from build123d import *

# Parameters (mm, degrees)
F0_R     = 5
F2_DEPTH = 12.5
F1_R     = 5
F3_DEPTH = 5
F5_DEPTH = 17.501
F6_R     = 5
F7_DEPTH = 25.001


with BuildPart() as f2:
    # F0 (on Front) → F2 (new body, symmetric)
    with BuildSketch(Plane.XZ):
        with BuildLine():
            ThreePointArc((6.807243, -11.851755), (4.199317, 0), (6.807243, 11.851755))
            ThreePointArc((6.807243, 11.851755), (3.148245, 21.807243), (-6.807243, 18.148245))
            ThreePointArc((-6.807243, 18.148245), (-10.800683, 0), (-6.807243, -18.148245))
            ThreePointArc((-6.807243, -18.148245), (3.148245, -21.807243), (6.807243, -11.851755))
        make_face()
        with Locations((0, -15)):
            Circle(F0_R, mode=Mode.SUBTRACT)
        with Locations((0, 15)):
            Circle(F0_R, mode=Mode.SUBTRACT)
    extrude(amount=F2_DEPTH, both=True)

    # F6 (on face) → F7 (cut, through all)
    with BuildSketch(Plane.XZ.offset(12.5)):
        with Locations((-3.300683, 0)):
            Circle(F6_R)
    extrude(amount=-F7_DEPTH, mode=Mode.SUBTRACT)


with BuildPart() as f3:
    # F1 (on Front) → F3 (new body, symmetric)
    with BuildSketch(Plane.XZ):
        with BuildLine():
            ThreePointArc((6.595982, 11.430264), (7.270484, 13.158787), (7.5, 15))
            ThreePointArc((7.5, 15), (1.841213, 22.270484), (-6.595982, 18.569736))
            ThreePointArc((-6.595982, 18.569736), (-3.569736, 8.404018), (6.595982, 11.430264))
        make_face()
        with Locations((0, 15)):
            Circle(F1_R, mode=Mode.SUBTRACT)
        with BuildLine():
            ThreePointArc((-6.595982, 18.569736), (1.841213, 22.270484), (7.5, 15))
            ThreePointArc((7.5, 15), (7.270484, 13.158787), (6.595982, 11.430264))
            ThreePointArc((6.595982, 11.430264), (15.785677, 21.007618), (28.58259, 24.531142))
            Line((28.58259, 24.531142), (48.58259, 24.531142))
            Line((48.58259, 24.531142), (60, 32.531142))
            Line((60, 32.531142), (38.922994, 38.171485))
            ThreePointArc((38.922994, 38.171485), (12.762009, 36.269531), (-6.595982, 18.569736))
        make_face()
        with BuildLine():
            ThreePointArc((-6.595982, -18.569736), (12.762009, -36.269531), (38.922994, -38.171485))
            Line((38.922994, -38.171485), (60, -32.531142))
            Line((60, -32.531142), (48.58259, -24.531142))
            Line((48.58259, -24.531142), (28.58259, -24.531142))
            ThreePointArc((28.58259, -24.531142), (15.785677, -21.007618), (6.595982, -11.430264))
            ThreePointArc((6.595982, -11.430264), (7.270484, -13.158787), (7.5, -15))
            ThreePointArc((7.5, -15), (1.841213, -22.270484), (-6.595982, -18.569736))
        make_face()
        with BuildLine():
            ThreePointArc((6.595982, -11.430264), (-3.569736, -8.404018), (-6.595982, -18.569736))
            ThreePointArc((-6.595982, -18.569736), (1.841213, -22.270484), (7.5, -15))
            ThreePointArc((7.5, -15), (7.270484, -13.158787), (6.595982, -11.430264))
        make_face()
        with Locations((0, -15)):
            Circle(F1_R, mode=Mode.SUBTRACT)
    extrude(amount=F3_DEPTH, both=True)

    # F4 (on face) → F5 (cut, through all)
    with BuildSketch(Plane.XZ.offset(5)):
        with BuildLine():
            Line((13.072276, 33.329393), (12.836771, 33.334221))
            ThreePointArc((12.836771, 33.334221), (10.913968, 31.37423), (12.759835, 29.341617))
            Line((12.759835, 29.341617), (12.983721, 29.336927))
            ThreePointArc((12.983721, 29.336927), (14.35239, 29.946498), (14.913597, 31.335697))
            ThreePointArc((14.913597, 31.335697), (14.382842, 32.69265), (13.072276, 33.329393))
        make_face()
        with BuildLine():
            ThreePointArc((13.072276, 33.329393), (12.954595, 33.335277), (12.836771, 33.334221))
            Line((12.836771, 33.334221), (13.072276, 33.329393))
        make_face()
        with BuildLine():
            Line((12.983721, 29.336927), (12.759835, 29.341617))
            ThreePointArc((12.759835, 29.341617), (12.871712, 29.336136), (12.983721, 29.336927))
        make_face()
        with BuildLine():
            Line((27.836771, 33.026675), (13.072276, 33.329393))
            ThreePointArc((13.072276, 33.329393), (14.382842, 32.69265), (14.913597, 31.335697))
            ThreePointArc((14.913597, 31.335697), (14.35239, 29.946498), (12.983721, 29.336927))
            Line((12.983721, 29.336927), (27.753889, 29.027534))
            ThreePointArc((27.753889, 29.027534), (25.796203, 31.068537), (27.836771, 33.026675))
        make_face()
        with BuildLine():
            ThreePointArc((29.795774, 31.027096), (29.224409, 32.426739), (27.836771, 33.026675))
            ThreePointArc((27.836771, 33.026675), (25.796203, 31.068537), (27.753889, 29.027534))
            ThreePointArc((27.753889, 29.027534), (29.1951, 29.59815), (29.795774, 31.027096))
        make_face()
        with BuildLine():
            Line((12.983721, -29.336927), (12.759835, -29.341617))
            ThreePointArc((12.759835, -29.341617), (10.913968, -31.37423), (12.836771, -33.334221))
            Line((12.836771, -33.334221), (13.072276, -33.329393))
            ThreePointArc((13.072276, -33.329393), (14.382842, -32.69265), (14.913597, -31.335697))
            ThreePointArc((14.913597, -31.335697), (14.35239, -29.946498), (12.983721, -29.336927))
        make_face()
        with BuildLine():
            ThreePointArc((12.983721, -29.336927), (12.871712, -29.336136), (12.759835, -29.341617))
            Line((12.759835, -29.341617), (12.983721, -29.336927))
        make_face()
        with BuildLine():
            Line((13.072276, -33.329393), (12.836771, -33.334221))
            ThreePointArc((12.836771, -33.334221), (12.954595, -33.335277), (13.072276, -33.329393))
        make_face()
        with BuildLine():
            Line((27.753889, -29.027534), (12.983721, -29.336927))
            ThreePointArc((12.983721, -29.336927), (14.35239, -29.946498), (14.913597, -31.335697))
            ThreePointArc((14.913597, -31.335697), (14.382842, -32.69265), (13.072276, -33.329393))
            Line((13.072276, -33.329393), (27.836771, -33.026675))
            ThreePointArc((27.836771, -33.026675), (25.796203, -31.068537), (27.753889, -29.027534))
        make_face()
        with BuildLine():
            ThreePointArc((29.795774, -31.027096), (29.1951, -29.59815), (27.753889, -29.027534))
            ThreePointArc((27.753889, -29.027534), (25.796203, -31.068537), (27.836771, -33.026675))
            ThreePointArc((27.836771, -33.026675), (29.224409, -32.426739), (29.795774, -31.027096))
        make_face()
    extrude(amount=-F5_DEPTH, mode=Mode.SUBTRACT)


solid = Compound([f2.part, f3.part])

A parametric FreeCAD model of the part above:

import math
import FreeCAD as App
import Part
import Sketcher
from FreeCAD import Vector

doc = App.newDocument("Part")
body = doc.addObject("PartDesign::Body", "Body")

# Sketch on XZ plane
sketch1 = body.newObject("Sketcher::SketchObject", "Sketch")
sketch1.AttachmentSupport = (doc.getObject("XZ_Plane"), [""])
sketch1.MapMode = "FlatFace"
sketch1.addGeometry(Part.ArcOfCircle(Part.Circle(Vector(32.43351, 0, 0), Vector(0, 0, 1), 28.234193), math.radians(155.180184), math.radians(204.819816)), False)
sketch1.addGeometry(Part.ArcOfCircle(Part.Circle(Vector(0, 15, 0), Vector(0, 0, 1), 7.5), math.radians(-24.819814), math.radians(155.180186)), False)
sketch1.addGeometry(Part.ArcOfCircle(Part.Circle(Vector(32.433516, 0, 0), Vector(0, 0, 1), 43.234199), math.radians(155.180188), math.radians(204.819812)), False)
sketch1.addGeometry(Part.ArcOfCircle(Part.Circle(Vector(0, -15, 0), Vector(0, 0, 1), 7.5), math.radians(-155.180186), math.radians(24.819814)), False)
sketch1.addGeometry(Part.Circle(Vector(0, -15, 0), Vector(0, 0, 1), 5), False)
sketch1.addGeometry(Part.Circle(Vector(0, 15, 0), Vector(0, 0, 1), 5), False)
sketch1.addConstraint(Sketcher.Constraint("Tangent", 0, 1, 1, 1))
sketch1.addConstraint(Sketcher.Constraint("Tangent", 1, 2, 2, 1))
sketch1.addConstraint(Sketcher.Constraint("Tangent", 2, 2, 3, 1))
sketch1.addConstraint(Sketcher.Constraint("Tangent", 3, 2, 0, 2))
sketch1.addConstraint(Sketcher.Constraint("Coincident", 2, 3, 0, 3))
sketch1.addConstraint(Sketcher.Constraint("Coincident", 4, 3, 3, 3))
sketch1.addConstraint(Sketcher.Constraint("Coincident", 5, 3, 1, 3))
sketch1.addConstraint(Sketcher.Constraint("Equal", 4, 5))
sketch1.addConstraint(Sketcher.Constraint("Symmetric", 1, 3, 3, 3, -1, 1))
sketch1.addConstraint(Sketcher.Constraint("PointOnObject", 0, 3, -1))
sketch1.addConstraint(Sketcher.Constraint("Diameter", 4, 10.0))
sketch1.addConstraint(Sketcher.Constraint("Radius", 1, 7.5))
sketch1.addConstraint(Sketcher.Constraint("DistanceY", -1, 1, 1, 3, 15.0))
sketch1.addConstraint(Sketcher.Constraint("Radius", 2, 43.234199))
pad1 = body.newObject("PartDesign::Pad", "Pad")
pad1.Profile = sketch1
pad1.Length = 25
pad1.Midplane = True

# Sketch on XZ plane
sketch2 = body.newObject("Sketcher::SketchObject", "Sketch001")
sketch2.AttachmentSupport = (doc.getObject("XZ_Plane"), [""])
sketch2.MapMode = "FlatFace"
sketch2.AttachmentOffset = App.Placement(Vector(0, 0, 12.5), App.Rotation())
sketch2.addGeometry(Part.Circle(Vector(-3.300683, 0, 0), Vector(0, 0, 1), 5), False)
sketch2.addConstraint(Sketcher.Constraint("PointOnObject", 0, 3, -1))
sketch2.addConstraint(Sketcher.Constraint("Diameter", 0, 10.0))
sketch2.addConstraint(Sketcher.Constraint("DistanceX", 0, 3, -1, 1, 3.300683))
pocket1 = body.newObject("PartDesign::Pocket", "Pocket")
pocket1.Profile = sketch2
pocket1.Type = "ThroughAll"
body2 = doc.addObject("PartDesign::Body", "Body001")
body2.AllowCompound = True

# Sketch on XZ plane
sketch3 = body2.newObject("Sketcher::SketchObject", "Sketch002")
sketch3.AttachmentSupport = (doc.getObject("XZ_Plane001"), [""])
sketch3.MapMode = "FlatFace"
sketch3.addGeometry(Part.ArcOfCircle(Part.Circle(Vector(0, 15, 0), Vector(0, 0, 1), 7.5), math.radians(151.577812), math.radians(331.577812)), False)
sketch3.addGeometry(Part.ArcOfCircle(Part.Circle(Vector(28.58259, -0.46886, 0), Vector(0, 0, 1), 25.000002), math.radians(90.000001), math.radians(151.577805)), False)
sketch3.addGeometry(Part.LineSegment(Vector(28.58259, 24.531142, 0), Vector(48.58259, 24.531142, 0)), False)
sketch3.addGeometry(Part.LineSegment(Vector(48.58259, 24.531142, 0), Vector(60, 32.531142, 0)), False)
sketch3.addGeometry(Part.LineSegment(Vector(60, 32.531142, 0), Vector(38.922994, 38.171485, 0)), False)
sketch3.addGeometry(Part.ArcOfCircle(Part.Circle(Vector(28.582591, -0.468859, 0), Vector(0, 0, 1), 40.000001), math.radians(75.018327), math.radians(151.57781)), False)
sketch3.addGeometry(Part.Circle(Vector(0, 15, 0), Vector(0, 0, 1), 5), False)
sketch3.addGeometry(Part.ArcOfCircle(Part.Circle(Vector(28.582591, 0.468859, 0), Vector(0, 0, 1), 40.000001), math.radians(-151.57781), math.radians(-75.018327)), False)
sketch3.addGeometry(Part.LineSegment(Vector(38.922994, -38.171485, 0), Vector(60, -32.531142, 0)), False)
sketch3.addGeometry(Part.LineSegment(Vector(60, -32.531142, 0), Vector(48.58259, -24.531142, 0)), False)
sketch3.addGeometry(Part.LineSegment(Vector(48.58259, -24.531142, 0), Vector(28.58259, -24.531142, 0)), False)
sketch3.addGeometry(Part.ArcOfCircle(Part.Circle(Vector(28.58259, 0.46886, 0), Vector(0, 0, 1), 25.000002), math.radians(-151.577805), math.radians(-90.000001)), False)
sketch3.addGeometry(Part.ArcOfCircle(Part.Circle(Vector(0, -15, 0), Vector(0, 0, 1), 7.5), math.radians(28.422188), math.radians(208.422188)), False)
sketch3.addGeometry(Part.Circle(Vector(0, -15, 0), Vector(0, 0, 1), 5), False)
sketch3.addConstraint(Sketcher.Constraint("Tangent", 0, 2, 1, 2))
sketch3.addConstraint(Sketcher.Constraint("Tangent", 1, 1, 2, 1))
sketch3.addConstraint(Sketcher.Constraint("Coincident", 2, 2, 3, 1))
sketch3.addConstraint(Sketcher.Constraint("Coincident", 3, 2, 4, 1))
sketch3.addConstraint(Sketcher.Constraint("Tangent", 4, 2, 5, 1))
sketch3.addConstraint(Sketcher.Constraint("Tangent", 5, 2, 0, 1))
sketch3.addConstraint(Sketcher.Constraint("Tangent", 7, 2, 8, 1))
sketch3.addConstraint(Sketcher.Constraint("Coincident", 8, 2, 9, 1))
sketch3.addConstraint(Sketcher.Constraint("Coincident", 9, 2, 10, 1))
sketch3.addConstraint(Sketcher.Constraint("Tangent", 10, 2, 11, 2))
sketch3.addConstraint(Sketcher.Constraint("Tangent", 11, 1, 12, 1))
sketch3.addConstraint(Sketcher.Constraint("Tangent", 12, 2, 7, 1))
sketch3.addConstraint(Sketcher.Constraint("Horizontal", 2))
sketch3.addConstraint(Sketcher.Constraint("Horizontal", 10))
sketch3.addConstraint(Sketcher.Constraint("Coincident", 5, 3, 1, 3))
sketch3.addConstraint(Sketcher.Constraint("Coincident", 6, 3, 0, 3))
sketch3.addConstraint(Sketcher.Constraint("Coincident", 11, 3, 7, 3))
sketch3.addConstraint(Sketcher.Constraint("Coincident", 13, 3, 12, 3))
sketch3.addConstraint(Sketcher.Constraint("Equal", 5, 7))
sketch3.addConstraint(Sketcher.Constraint("Equal", 1, 11))
sketch3.addConstraint(Sketcher.Constraint("Equal", 6, 13))
sketch3.addConstraint(Sketcher.Constraint("Symmetric", 0, 3, 12, 3, -1, 1))
sketch3.addConstraint(Sketcher.Constraint("Symmetric", 1, 3, 7, 3, -1))
sketch3.addConstraint(Sketcher.Constraint("Symmetric", 3, 2, 8, 2, -1))
sketch3.addConstraint(Sketcher.Constraint("Vertical", 2, 2, 9, 2))
sketch3.addConstraint(Sketcher.Constraint("Diameter", 6, 10.0))
sketch3.addConstraint(Sketcher.Constraint("Radius", 5, 40.000001))
sketch3.addConstraint(Sketcher.Constraint("Radius", 0, 7.5))
sketch3.addConstraint(Sketcher.Constraint("DistanceX", 2, 1, 2, 2, 20.0))
sketch3.addConstraint(Sketcher.Constraint("DistanceY", -1, 1, 0, 3, 15.0))
sketch3.addConstraint(Sketcher.Constraint("DistanceX", -1, 1, 3, 2, 60.0))
sketch3.addConstraint(Sketcher.Constraint("DistanceY", 2, 2, 3, 2, 8.0))
sketch3.addConstraint(Sketcher.Constraint("DistanceX", -1, 1, 1, 3, 28.58259))
pad2 = body2.newObject("PartDesign::Pad", "Pad001")
pad2.Profile = sketch3
pad2.Length = 10
pad2.Midplane = True

# Sketch on XZ plane
sketch4 = body2.newObject("Sketcher::SketchObject", "Sketch003")
sketch4.AttachmentSupport = (doc.getObject("XZ_Plane001"), [""])
sketch4.MapMode = "FlatFace"
sketch4.AttachmentOffset = App.Placement(Vector(0, 0, 5), App.Rotation())
sketch4.addGeometry(Part.ArcOfCircle(Part.Circle(Vector(12.913597, 31.335697, 0), Vector(0, 0, 1), 2), math.radians(92.201431), math.radians(265.590705)), False)
sketch4.addGeometry(Part.ArcOfCircle(Part.Circle(Vector(12.913599, 31.335665, 0), Vector(0, 0, 1), 1.999967), math.radians(-94.40943), math.radians(-87.990701)), False)
sketch4.addGeometry(Part.LineSegment(Vector(12.983721, 29.336927, 0), Vector(27.753889, 29.027534, 0)), False)
sketch4.addGeometry(Part.ArcOfCircle(Part.Circle(Vector(27.795773, 31.027096, 0), Vector(0, 0, 1), 2.000001), math.radians(-91.199972), math.radians(-0.000014)), False)
sketch4.addGeometry(Part.ArcOfCircle(Part.Circle(Vector(27.795774, 31.027096, 0), Vector(0, 0, 1), 2), math.radians(0.000011), math.radians(88.825451)), False)
sketch4.addGeometry(Part.LineSegment(Vector(27.836771, 33.026675, 0), Vector(13.072276, 33.329393, 0)), False)
sketch4.addGeometry(Part.ArcOfCircle(Part.Circle(Vector(12.9136, 31.335614, 0), Vector(0, 0, 1), 2.000083), math.radians(85.449683), math.radians(92.201447)), False)
sketch4.addGeometry(Part.ArcOfCircle(Part.Circle(Vector(12.913597, -31.335697, 0), Vector(0, 0, 1), 2), math.radians(94.409295), math.radians(267.798569)), False)
sketch4.addGeometry(Part.ArcOfCircle(Part.Circle(Vector(12.9136, -31.335614, 0), Vector(0, 0, 1), 2.000083), math.radians(-92.201447), math.radians(-85.449683)), False)
sketch4.addGeometry(Part.LineSegment(Vector(13.072276, -33.329393, 0), Vector(27.836771, -33.026675, 0)), False)
sketch4.addGeometry(Part.ArcOfCircle(Part.Circle(Vector(27.795774, -31.027096, 0), Vector(0, 0, 1), 2), math.radians(-88.825451), math.radians(-0.000011)), False)
sketch4.addGeometry(Part.ArcOfCircle(Part.Circle(Vector(27.795773, -31.027096, 0), Vector(0, 0, 1), 2.000001), math.radians(0.000014), math.radians(91.199972)), False)
sketch4.addGeometry(Part.LineSegment(Vector(27.753889, -29.027534, 0), Vector(12.983721, -29.336927, 0)), False)
sketch4.addGeometry(Part.ArcOfCircle(Part.Circle(Vector(12.913599, -31.335665, 0), Vector(0, 0, 1), 1.999967), math.radians(87.990701), math.radians(94.40943)), False)
sketch4.addConstraint(Sketcher.Constraint("Coincident", 0, 2, 1, 1))
sketch4.addConstraint(Sketcher.Constraint("Coincident", 1, 2, 2, 1))
sketch4.addConstraint(Sketcher.Constraint("Coincident", 2, 2, 3, 1))
sketch4.addConstraint(Sketcher.Constraint("Coincident", 3, 2, 4, 1))
sketch4.addConstraint(Sketcher.Constraint("Coincident", 4, 2, 5, 1))
sketch4.addConstraint(Sketcher.Constraint("Coincident", 5, 2, 6, 1))
sketch4.addConstraint(Sketcher.Constraint("Coincident", 6, 2, 0, 1))
sketch4.addConstraint(Sketcher.Constraint("Coincident", 7, 2, 8, 1))
sketch4.addConstraint(Sketcher.Constraint("Coincident", 8, 2, 9, 1))
sketch4.addConstraint(Sketcher.Constraint("Coincident", 9, 2, 10, 1))
sketch4.addConstraint(Sketcher.Constraint("Coincident", 10, 2, 11, 1))
sketch4.addConstraint(Sketcher.Constraint("Coincident", 11, 2, 12, 1))
sketch4.addConstraint(Sketcher.Constraint("Coincident", 12, 2, 13, 1))
sketch4.addConstraint(Sketcher.Constraint("Coincident", 13, 2, 7, 1))
sketch4.addConstraint(Sketcher.Constraint("Coincident", 4, 3, 3, 3))
sketch4.addConstraint(Sketcher.Constraint("Coincident", 11, 3, 10, 3))
sketch4.addConstraint(Sketcher.Constraint("Radius", 0, 2.0))
sketch4.addConstraint(Sketcher.Constraint("Radius", 3, 2.000001))
sketch4.addConstraint(Sketcher.Constraint("Radius", 7, 2.0))
sketch4.addConstraint(Sketcher.Constraint("Radius", 10, 2.0))
sketch4.addConstraint(Sketcher.Constraint("DistanceX", 7, 2, 9, 2, 15.0))
sketch4.addConstraint(Sketcher.Constraint("Radius", 1, 1.999967))
sketch4.addConstraint(Sketcher.Constraint("Radius", 6, 2.000083))
sketch4.addConstraint(Sketcher.Constraint("Radius", 8, 2.000083))
sketch4.addConstraint(Sketcher.Constraint("Radius", 13, 1.999967))
sketch4.addConstraint(Sketcher.Constraint("DistanceX", 3, 3, 4, 2, 0.040998))
sketch4.addConstraint(Sketcher.Constraint("DistanceX", 7, 2, 11, 3, 14.959002))
sketch4.addConstraint(Sketcher.Constraint("Distance", 5, 14.767598))
sketch4.addConstraint(Sketcher.Constraint("Distance", 9, 14.767598))
sketch4.addConstraint(Sketcher.Constraint("DistanceX", -1, 1, 1, 3, 12.913599))
sketch4.addConstraint(Sketcher.Constraint("DistanceX", -1, 1, 6, 3, 12.9136))
sketch4.addConstraint(Sketcher.Constraint("DistanceX", -1, 1, 8, 3, 12.9136))
sketch4.addConstraint(Sketcher.Constraint("DistanceX", -1, 1, 13, 3, 12.913599))
sketch4.addConstraint(Sketcher.Constraint("DistanceY", 3, 3, 0, 3, 0.308601))
sketch4.addConstraint(Sketcher.Constraint("DistanceY", 7, 3, 10, 3, 0.308602))
sketch4.addConstraint(Sketcher.Constraint("Distance", 2, 14.773408))
sketch4.addConstraint(Sketcher.Constraint("Distance", 12, 14.773408))
sketch4.addConstraint(Sketcher.Constraint("DistanceX", -1, 1, 1, 2, 12.983721))
sketch4.addConstraint(Sketcher.Constraint("DistanceX", -1, 1, 4, 2, 27.836771))
sketch4.addConstraint(Sketcher.Constraint("DistanceX", -1, 1, 6, 2, 12.836771))
sketch4.addConstraint(Sketcher.Constraint("DistanceY", -1, 1, 6, 2, 33.334221))
sketch4.addConstraint(Sketcher.Constraint("DistanceX", -1, 1, 7, 2, 12.836771))
sketch4.addConstraint(Sketcher.Constraint("DistanceY", 7, 2, -1, 1, 33.334221))
sketch4.addConstraint(Sketcher.Constraint("DistanceX", -1, 1, 11, 2, 27.753889))
sketch4.addConstraint(Sketcher.Constraint("DistanceY", 3, 3, 1, 3, 0.308568))
sketch4.addConstraint(Sketcher.Constraint("DistanceY", 7, 3, 6, 3, 62.671311))
sketch4.addConstraint(Sketcher.Constraint("DistanceX", 0, 2, 0, 3, 0.153762))
sketch4.addConstraint(Sketcher.Constraint("DistanceY", 3, 2, 1, 3, 0.308569))
sketch4.addConstraint(Sketcher.Constraint("DistanceY", 9, 2, 10, 2, 1.999579))
sketch4.addConstraint(Sketcher.Constraint("DistanceY", 13, 2, 12, 2, 0.00469))
pocket2 = body2.newObject("PartDesign::Pocket", "Pocket001")
pocket2.Profile = sketch4
pocket2.Type = "ThroughAll"

doc.recompute()
